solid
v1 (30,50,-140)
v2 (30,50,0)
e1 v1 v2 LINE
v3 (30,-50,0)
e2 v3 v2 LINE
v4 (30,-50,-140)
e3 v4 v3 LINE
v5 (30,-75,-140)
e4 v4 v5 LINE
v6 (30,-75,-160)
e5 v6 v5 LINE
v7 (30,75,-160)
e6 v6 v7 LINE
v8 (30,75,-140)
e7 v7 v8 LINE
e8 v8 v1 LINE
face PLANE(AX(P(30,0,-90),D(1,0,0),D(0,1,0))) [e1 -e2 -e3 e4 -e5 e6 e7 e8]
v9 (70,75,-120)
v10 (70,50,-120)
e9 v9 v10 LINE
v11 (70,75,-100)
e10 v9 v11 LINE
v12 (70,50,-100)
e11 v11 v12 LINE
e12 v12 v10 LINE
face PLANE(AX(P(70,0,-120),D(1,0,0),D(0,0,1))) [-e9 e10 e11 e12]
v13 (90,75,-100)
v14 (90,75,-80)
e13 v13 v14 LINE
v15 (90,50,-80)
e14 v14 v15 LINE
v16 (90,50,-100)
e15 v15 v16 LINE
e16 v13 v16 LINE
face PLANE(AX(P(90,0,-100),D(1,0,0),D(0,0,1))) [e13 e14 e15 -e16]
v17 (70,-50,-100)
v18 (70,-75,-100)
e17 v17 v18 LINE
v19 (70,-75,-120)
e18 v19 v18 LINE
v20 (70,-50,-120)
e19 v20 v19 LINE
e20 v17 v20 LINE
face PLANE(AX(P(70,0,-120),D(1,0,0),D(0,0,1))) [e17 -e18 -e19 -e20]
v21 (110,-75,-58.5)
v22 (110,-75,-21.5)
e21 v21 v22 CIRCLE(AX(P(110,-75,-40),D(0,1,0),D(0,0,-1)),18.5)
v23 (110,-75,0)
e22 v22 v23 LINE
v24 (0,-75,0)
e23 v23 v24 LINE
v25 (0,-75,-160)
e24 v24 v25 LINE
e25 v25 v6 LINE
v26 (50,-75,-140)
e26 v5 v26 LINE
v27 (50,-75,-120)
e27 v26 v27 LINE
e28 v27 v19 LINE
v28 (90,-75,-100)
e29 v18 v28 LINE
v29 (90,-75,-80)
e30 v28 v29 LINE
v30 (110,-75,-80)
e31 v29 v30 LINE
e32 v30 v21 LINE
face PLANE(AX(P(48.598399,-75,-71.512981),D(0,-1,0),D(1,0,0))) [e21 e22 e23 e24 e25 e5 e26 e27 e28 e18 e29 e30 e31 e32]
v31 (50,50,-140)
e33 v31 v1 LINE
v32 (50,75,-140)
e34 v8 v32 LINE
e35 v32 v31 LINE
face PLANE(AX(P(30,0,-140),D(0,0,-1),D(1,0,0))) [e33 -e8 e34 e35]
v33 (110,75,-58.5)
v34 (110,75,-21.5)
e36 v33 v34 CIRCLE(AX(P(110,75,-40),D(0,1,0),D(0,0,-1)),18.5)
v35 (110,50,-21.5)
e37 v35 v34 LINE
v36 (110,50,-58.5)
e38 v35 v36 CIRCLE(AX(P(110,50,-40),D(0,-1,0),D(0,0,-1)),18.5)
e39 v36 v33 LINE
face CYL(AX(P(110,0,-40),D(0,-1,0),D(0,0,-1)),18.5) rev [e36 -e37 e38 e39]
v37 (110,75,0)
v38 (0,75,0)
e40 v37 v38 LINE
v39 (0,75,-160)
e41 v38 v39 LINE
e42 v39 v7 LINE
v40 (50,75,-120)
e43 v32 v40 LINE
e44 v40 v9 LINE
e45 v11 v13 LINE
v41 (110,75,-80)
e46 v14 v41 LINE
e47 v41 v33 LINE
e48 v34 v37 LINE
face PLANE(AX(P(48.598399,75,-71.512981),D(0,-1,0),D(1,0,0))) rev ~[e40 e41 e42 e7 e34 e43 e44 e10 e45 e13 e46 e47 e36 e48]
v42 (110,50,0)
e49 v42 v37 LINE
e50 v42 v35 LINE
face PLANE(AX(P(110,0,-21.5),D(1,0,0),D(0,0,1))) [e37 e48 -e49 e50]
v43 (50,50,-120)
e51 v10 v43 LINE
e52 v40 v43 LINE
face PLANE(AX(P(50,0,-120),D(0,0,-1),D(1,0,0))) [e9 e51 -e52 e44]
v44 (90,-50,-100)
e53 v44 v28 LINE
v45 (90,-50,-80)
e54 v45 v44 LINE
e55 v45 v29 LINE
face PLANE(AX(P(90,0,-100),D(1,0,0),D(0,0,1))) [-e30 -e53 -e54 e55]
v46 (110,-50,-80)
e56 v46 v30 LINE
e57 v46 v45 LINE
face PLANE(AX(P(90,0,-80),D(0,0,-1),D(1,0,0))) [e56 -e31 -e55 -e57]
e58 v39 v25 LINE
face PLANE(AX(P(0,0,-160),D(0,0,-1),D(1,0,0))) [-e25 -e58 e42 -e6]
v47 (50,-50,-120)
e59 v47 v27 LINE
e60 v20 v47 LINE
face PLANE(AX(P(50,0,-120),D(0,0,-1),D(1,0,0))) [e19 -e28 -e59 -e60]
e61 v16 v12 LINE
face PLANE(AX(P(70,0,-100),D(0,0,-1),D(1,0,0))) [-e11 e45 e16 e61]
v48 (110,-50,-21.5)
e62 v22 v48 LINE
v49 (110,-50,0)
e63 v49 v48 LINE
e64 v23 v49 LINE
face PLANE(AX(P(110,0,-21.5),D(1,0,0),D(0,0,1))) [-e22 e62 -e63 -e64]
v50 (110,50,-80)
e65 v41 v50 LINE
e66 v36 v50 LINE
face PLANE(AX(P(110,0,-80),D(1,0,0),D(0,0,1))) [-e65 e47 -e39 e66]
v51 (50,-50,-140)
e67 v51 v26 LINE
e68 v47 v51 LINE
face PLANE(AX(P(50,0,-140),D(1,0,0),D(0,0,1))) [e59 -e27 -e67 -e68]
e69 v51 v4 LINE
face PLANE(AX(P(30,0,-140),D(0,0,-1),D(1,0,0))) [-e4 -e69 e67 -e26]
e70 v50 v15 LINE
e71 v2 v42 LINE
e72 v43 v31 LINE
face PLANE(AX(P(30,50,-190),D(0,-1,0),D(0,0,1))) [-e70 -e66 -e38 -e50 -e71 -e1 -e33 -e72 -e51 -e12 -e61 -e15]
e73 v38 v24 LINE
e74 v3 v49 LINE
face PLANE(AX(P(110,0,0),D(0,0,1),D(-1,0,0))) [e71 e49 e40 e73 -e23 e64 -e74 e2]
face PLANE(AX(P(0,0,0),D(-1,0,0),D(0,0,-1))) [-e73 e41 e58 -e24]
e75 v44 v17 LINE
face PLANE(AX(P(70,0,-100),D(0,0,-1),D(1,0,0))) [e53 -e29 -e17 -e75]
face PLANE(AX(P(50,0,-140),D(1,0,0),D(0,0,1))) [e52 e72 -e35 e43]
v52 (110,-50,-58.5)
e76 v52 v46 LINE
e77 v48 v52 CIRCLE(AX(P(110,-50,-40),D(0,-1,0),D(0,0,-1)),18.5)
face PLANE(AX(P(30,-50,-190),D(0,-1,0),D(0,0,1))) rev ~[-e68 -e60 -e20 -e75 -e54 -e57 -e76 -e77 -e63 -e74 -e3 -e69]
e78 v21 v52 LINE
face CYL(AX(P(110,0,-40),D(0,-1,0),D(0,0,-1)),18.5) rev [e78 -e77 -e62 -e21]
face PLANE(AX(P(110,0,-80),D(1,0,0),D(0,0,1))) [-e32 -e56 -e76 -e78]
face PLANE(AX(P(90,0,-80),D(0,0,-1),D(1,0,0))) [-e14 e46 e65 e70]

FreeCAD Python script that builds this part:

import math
import FreeCAD as App
import Part
import Sketcher
from FreeCAD import Vector
Q = App.Units.Quantity


def add_polygon(sketch, points):
    """Adds a closed chain of lines whose ends are joined by coincident constraints."""
    first, n = sketch.GeometryCount, len(points)
    for a, b in zip(points, points[1:] + points[:1]):
        sketch.addGeometry(Part.LineSegment(App.Vector(*a, 0), App.Vector(*b, 0)), False)
    for i in range(n):
        sketch.addConstraint(Sketcher.Constraint("Coincident", first + i, 2, first + (i + 1) % n, 1))

doc = App.newDocument("Part")
body = doc.addObject("PartDesign::Body", "Body")

# Sketch on XZ plane
sketch1 = body.newObject("Sketcher::SketchObject", "Sketch")
sketch1.AttachmentSupport = (doc.getObject("XZ_Plane"), [""])
sketch1.MapMode = "FlatFace"
sketch1.addGeometry(Part.LineSegment(Vector(110, 0, 0), Vector(0, 0, 0)), False)
sketch1.addGeometry(Part.LineSegment(Vector(0, 0, 0), Vector(0, -160, 0)), False)
sketch1.addGeometry(Part.LineSegment(Vector(0, -160, 0), Vector(30, -160, 0)), False)
sketch1.addGeometry(Part.LineSegment(Vector(30, -160, 0), Vector(30, -140, 0)), False)
sketch1.addGeometry(Part.LineSegment(Vector(30, -140, 0), Vector(50, -140, 0)), False)
sketch1.addGeometry(Part.LineSegment(Vector(50, -140, 0), Vector(50, -120, 0)), False)
sketch1.addGeometry(Part.LineSegment(Vector(50, -120, 0), Vector(70, -120, 0)), False)
sketch1.addGeometry(Part.LineSegment(Vector(70, -120, 0), Vector(70, -100, 0)), False)
sketch1.addGeometry(Part.LineSegment(Vector(70, -100, 0), Vector(90, -100, 0)), False)
sketch1.addGeometry(Part.LineSegment(Vector(90, -100, 0), Vector(90, -80, 0)), False)
sketch1.addGeometry(Part.LineSegment(Vector(90, -80, 0), Vector(110, -80, 0)), False)
sketch1.addGeometry(Part.LineSegment(Vector(110, -80, 0), Vector(110, -58, 0)), False)
sketch1.addGeometry(Part.ArcOfCircle(Part.Circle(Vector(110, -40, 0), Vector(0, 0, 1), 18), math.radians(90), math.radians(270)), False)
sketch1.addGeometry(Part.LineSegment(Vector(110, -22, 0), Vector(110, 0, 0)), False)
sketch1.addConstraint(Sketcher.Constraint("Coincident", 0, 2, 1, 1))
sketch1.addConstraint(Sketcher.Constraint("Coincident", 1, 2, 2, 1))
sketch1.addConstraint(Sketcher.Constraint("Coincident", 2, 2, 3, 1))
sketch1.addConstraint(Sketcher.Constraint("Coincident", 3, 2, 4, 1))
sketch1.addConstraint(Sketcher.Constraint("Coincident", 4, 2, 5, 1))
sketch1.addConstraint(Sketcher.Constraint("Coincident", 5, 2, 6, 1))
sketch1.addConstraint(Sketcher.Constraint("Coincident", 6, 2, 7, 1))
sketch1.addConstraint(Sketcher.Constraint("Coincident", 7, 2, 8, 1))
sketch1.addConstraint(Sketcher.Constraint("Coincident", 8, 2, 9, 1))
sketch1.addConstraint(Sketcher.Constraint("Coincident", 9, 2, 10, 1))
sketch1.addConstraint(Sketcher.Constraint("Coincident", 10, 2, 11, 1))
sketch1.addConstraint(Sketcher.Constraint("Coincident", 11, 2, 12, 2))
sketch1.addConstraint(Sketcher.Constraint("Coincident", 12, 1, 13, 1))
sketch1.addConstraint(Sketcher.Constraint("Coincident", 13, 2, 0, 1))
sketch1.addConstraint(Sketcher.Constraint("Horizontal", 0))
sketch1.addConstraint(Sketcher.Constraint("Vertical", 1))
sketch1.addConstraint(Sketcher.Constraint("Horizontal", 2))
sketch1.addConstraint(Sketcher.Constraint("Vertical", 3))
sketch1.addConstraint(Sketcher.Constraint("Horizontal", 4))
sketch1.addConstraint(Sketcher.Constraint("Vertical", 5))
sketch1.addConstraint(Sketcher.Constraint("Horizontal", 6))
sketch1.addConstraint(Sketcher.Constraint("Vertical", 7))
sketch1.addConstraint(Sketcher.Constraint("Horizontal", 8))
sketch1.addConstraint(Sketcher.Constraint("Vertical", 9))
sketch1.addConstraint(Sketcher.Constraint("Horizontal", 10))
sketch1.addConstraint(Sketcher.Constraint("Vertical", 11))
sketch1.addConstraint(Sketcher.Constraint("Vertical", 13))
sketch1.addConstraint(Sketcher.Constraint("Coincident", 0, 2, -1, 1))
sketch1.addConstraint(Sketcher.Constraint("Vertical", 12, 3, 10, 2))
sketch1.addConstraint(Sketcher.Constraint("Vertical", 11, 2, 12, 1))
sketch1.addConstraint(Sketcher.Constraint("Equal", 4, 6))
sketch1.addConstraint(Sketcher.Constraint("Equal", 6, 8))
sketch1.addConstraint(Sketcher.Constraint("Equal", 8, 10))
sketch1.addConstraint(Sketcher.Constraint("Equal", 10, 3))
sketch1.addConstraint(Sketcher.Constraint("Equal", 3, 5))
sketch1.addConstraint(Sketcher.Constraint("Equal", 5, 7))
sketch1.addConstraint(Sketcher.Constraint("Equal", 7, 9))
sketch1.addConstraint(Sketcher.Constraint("Equal", 11, 13))
sketch1.addConstraint(Sketcher.Constraint("Radius", 12, Q("18.5 mm")))
sketch1.addConstraint(Sketcher.Constraint("DistanceX", 0, 2, 0, 1, Q("110 mm")))
sketch1.addConstraint(Sketcher.Constraint("DistanceX", 2, 1, 2, 2, Q("30 mm")))
sketch1.addConstraint(Sketcher.Constraint("DistanceY", 1, 2, 1, 1, Q("160 mm")))
pad1 = body.newObject("PartDesign::Pad", "Pad")
pad1.Profile = sketch1
pad1.Type = "TwoLengths"
pad1.Length = 75
pad1.Length2 = 75

# Sketch on YZ plane
sketch2 = body.newObject("Sketcher::SketchObject", "Sketch001")
sketch2.AttachmentSupport = (doc.getObject("YZ_Plane"), [""])
sketch2.MapMode = "FlatFace"
sketch2.AttachmentOffset = App.Placement(Vector(0, 0, 30), App.Rotation())
add_polygon(sketch2, [(-50, 10), (-50, -190), (50, -190), (50, 10)])  # lines 0-3
sketch2.addConstraint(Sketcher.Constraint("Vertical", 0))
sketch2.addConstraint(Sketcher.Constraint("Horizontal", 1))
sketch2.addConstraint(Sketcher.Constraint("Vertical", 2))
sketch2.addConstraint(Sketcher.Constraint("Horizontal", 3))
sketch2.addConstraint(Sketcher.Constraint("DistanceX", 1, 1, 1, 2, Q("100 mm")))
sketch2.addConstraint(Sketcher.Constraint("DistanceY", 0, 2, 0, 1, Q("200 mm")))
sketch2.addConstraint(Sketcher.Constraint("DistanceX", 0, 2, -1, 1, Q("50 mm")))
sketch2.addConstraint(Sketcher.Constraint("DistanceY", 0, 2, -1, 1, Q("190 mm")))
pocket1 = body.newObject("PartDesign::Pocket", "Pocket")
pocket1.Profile = sketch2
pocket1.Length = 170
pocket1.Reversed = True

doc.recompute()
